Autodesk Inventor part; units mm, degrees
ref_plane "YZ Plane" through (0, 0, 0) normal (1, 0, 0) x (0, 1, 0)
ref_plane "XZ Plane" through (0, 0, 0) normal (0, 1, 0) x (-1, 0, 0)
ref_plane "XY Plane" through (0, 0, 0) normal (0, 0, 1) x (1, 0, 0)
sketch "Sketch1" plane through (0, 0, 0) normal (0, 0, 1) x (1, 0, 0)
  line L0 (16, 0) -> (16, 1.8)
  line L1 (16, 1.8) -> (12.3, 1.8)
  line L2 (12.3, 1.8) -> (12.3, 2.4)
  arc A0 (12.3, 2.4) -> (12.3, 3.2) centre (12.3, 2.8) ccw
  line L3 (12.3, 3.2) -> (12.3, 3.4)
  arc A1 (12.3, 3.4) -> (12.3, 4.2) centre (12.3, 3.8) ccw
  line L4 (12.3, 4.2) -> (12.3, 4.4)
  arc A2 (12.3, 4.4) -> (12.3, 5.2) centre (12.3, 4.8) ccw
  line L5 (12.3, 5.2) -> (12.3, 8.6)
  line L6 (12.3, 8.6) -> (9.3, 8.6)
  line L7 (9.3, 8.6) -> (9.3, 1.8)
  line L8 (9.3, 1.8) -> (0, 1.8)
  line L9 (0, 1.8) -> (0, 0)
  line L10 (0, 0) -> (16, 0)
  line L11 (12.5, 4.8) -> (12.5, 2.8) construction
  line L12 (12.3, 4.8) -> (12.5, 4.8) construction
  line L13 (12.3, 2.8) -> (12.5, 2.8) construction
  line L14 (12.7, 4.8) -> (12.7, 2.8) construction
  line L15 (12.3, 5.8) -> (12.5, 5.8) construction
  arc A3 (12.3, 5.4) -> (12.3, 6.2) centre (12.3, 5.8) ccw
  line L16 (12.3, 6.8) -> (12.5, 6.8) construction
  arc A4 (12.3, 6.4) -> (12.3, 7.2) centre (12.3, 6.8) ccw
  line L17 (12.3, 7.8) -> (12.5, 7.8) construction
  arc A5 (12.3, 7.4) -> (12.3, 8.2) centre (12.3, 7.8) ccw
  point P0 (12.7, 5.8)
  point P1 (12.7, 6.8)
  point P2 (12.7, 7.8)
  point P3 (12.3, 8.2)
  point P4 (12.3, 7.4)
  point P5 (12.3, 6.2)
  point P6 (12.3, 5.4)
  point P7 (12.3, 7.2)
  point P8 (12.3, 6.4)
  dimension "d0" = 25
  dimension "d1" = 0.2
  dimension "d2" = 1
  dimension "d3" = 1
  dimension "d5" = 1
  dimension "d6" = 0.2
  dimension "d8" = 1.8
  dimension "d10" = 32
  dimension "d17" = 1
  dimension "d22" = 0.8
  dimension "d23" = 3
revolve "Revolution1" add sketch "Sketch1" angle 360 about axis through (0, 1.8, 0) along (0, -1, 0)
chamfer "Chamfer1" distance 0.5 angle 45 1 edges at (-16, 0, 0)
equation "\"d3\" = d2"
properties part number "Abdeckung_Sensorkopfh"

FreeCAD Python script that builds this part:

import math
import FreeCAD as App
import Part
import Sketcher
from FreeCAD import Vector


def edges_at(feature, points):
    """Names of the edges that pass closest to the given points."""
    edges = feature.Shape.Edges
    near = lambda p: min(range(len(edges)), key=lambda i: edges[i].distToShape(Part.Vertex(*p))[0])
    return sorted({f"Edge{near(p) + 1}" for p in points})

doc = App.newDocument("Part")
params = doc.addObject("Spreadsheet::Sheet", "Params")
for row, (alias, value) in enumerate([
    ("sketch1_radius", "0.4 mm"),
    ("sketch1_width", "3 mm"),
    ("sketch1_height", "1.8 mm"),
    ("sketch1_height2", "0.2 mm"),
    ("sketch1_width2", "16 mm"),
    ("revolution_angle", "360 deg"),
    ("chamfer_size", "0.5 mm"),
], start=1):
    params.set(f"A{row}", alias)
    params.set(f"B{row}", "=" + value)
    params.setAlias(f"B{row}", alias)

body = doc.addObject("PartDesign::Body", "Body")

sketch1 = body.newObject("Sketcher::SketchObject", "Sketch")
sketch1.AttachmentSupport = (doc.getObject("XY_Plane"), [""])
sketch1.MapMode = "FlatFace"
sketch1.addGeometry([
    Part.LineSegment(Vector(0, 0, 0), Vector(16, 0, 0)),
    Part.LineSegment(Vector(16, 0, 0), Vector(16, 1.8, 0)),
    Part.LineSegment(Vector(16, 1.8, 0), Vector(12.3, 1.8, 0)),
    Part.LineSegment(Vector(12.3, 1.8, 0), Vector(12.3, 2.4, 0)),
    Part.ArcOfCircle(Part.Circle(Vector(12.3, 2.8, 0), Vector(0, 0, 1), 0.4), math.radians(-90), math.radians(90)),
    Part.LineSegment(Vector(12.3, 3.2, 0), Vector(12.3, 3.4, 0)),
    Part.ArcOfCircle(Part.Circle(Vector(12.3, 3.8, 0), Vector(0, 0, 1), 0.4), math.radians(-90), math.radians(90)),
    Part.LineSegment(Vector(12.3, 4.2, 0), Vector(12.3, 4.4, 0)),
    Part.ArcOfCircle(Part.Circle(Vector(12.3, 4.8, 0), Vector(0, 0, 1), 0.4), math.radians(-90), math.radians(90)),
    Part.LineSegment(Vector(12.3, 5.2, 0), Vector(12.3, 5.4, 0)),
    Part.ArcOfCircle(Part.Circle(Vector(12.3, 5.8, 0), Vector(0, 0, 1), 0.4), math.radians(-90), math.radians(90)),
    Part.LineSegment(Vector(12.3, 6.2, 0), Vector(12.3, 6.4, 0)),
    Part.ArcOfCircle(Part.Circle(Vector(12.3, 6.8, 0), Vector(0, 0, 1), 0.4), math.radians(-90), math.radians(90)),
    Part.LineSegment(Vector(12.3, 7.2, 0), Vector(12.3, 7.4, 0)),
    Part.ArcOfCircle(Part.Circle(Vector(12.3, 7.8, 0), Vector(0, 0, 1), 0.4), math.radians(-90), math.radians(90)),
    Part.LineSegment(Vector(12.3, 8.2, 0), Vector(12.3, 8.6, 0)),
    Part.LineSegment(Vector(12.3, 8.6, 0), Vector(9.3, 8.6, 0)),
    Part.LineSegment(Vector(9.3, 8.6, 0), Vector(9.3, 1.8, 0)),
    Part.LineSegment(Vector(9.3, 1.8, 0), Vector(0, 1.8, 0)),
    Part.LineSegment(Vector(0, 1.8, 0), Vector(0, 0, 0)),
], False)
sketch1.addConstraint([
    Sketcher.Constraint("Coincident", 0, 2, 1, 1),
    Sketcher.Constraint("Coincident", 1, 2, 2, 1),
    Sketcher.Constraint("Coincident", 2, 2, 3, 1),
    Sketcher.Constraint("Coincident", 3, 2, 4, 1),
    Sketcher.Constraint("Coincident", 4, 2, 5, 1),
    Sketcher.Constraint("Coincident", 5, 2, 6, 1),
    Sketcher.Constraint("Coincident", 6, 2, 7, 1),
    Sketcher.Constraint("Coincident", 7, 2, 8, 1),
    Sketcher.Constraint("Coincident", 8, 2, 9, 1),
    Sketcher.Constraint("Coincident", 9, 2, 10, 1),
    Sketcher.Constraint("Coincident", 10, 2, 11, 1),
    Sketcher.Constraint("Coincident", 11, 2, 12, 1),
    Sketcher.Constraint("Coincident", 12, 2, 13, 1),
    Sketcher.Constraint("Coincident", 13, 2, 14, 1),
    Sketcher.Constraint("Coincident", 14, 2, 15, 1),
    Sketcher.Constraint("Coincident", 15, 2, 16, 1),
    Sketcher.Constraint("Coincident", 16, 2, 17, 1),
    Sketcher.Constraint("Coincident", 17, 2, 18, 1),
    Sketcher.Constraint("Coincident", 18, 2, 19, 1),
    Sketcher.Constraint("Coincident", 19, 2, 0, 1),
    Sketcher.Constraint("Horizontal", 0),
    Sketcher.Constraint("Vertical", 1),
    Sketcher.Constraint("Horizontal", 2),
    Sketcher.Constraint("Vertical", 3),
    Sketcher.Constraint("Vertical", 5),
    Sketcher.Constraint("Vertical", 7),
    Sketcher.Constraint("Vertical", 9),
    Sketcher.Constraint("Vertical", 11),
    Sketcher.Constraint("Vertical", 13),
    Sketcher.Constraint("Vertical", 15),
    Sketcher.Constraint("Horizontal", 16),
    Sketcher.Constraint("Vertical", 17),
    Sketcher.Constraint("Horizontal", 18),
    Sketcher.Constraint("Vertical", 19),
    Sketcher.Constraint("Coincident", 19, 2, -1, 1),
    Sketcher.Constraint("Equal", 4, 6),
    Sketcher.Constraint("Equal", 6, 8),
    Sketcher.Constraint("Equal", 8, 10),
    Sketcher.Constraint("Equal", 10, 12),
    Sketcher.Constraint("Equal", 12, 14),
    Sketcher.Constraint("Horizontal", 2, 2, 17, 2),
    Sketcher.Constraint("Vertical", 4, 3, 6, 3),
    Sketcher.Constraint("Vertical", 6, 3, 8, 3),
    Sketcher.Constraint("Vertical", 8, 3, 10, 3),
    Sketcher.Constraint("Vertical", 10, 3, 12, 3),
    Sketcher.Constraint("Vertical", 12, 3, 14, 3),
    Sketcher.Constraint("Vertical", 14, 3, 2, 2),
    Sketcher.Constraint("Vertical", 3, 2, 4, 2),
    Sketcher.Constraint("Vertical", 5, 2, 6, 2),
    Sketcher.Constraint("Vertical", 7, 2, 8, 2),
    Sketcher.Constraint("Vertical", 9, 2, 10, 2),
    Sketcher.Constraint("Vertical", 11, 2, 12, 2),
    Sketcher.Constraint("Vertical", 13, 2, 14, 2),
    Sketcher.Constraint("Equal", 5, 7),
    Sketcher.Constraint("Equal", 7, 9),
    Sketcher.Constraint("Equal", 9, 11),
    Sketcher.Constraint("Equal", 11, 13),
    Sketcher.Constraint("Radius", 4, 0.4),
    Sketcher.Constraint("DistanceX", 16, 2, 16, 1, 3.0),
    Sketcher.Constraint("DistanceY", 1, 1, 1, 2, 1.8),
    Sketcher.Constraint("DistanceY", 5, 1, 5, 2, 0.2),
    Sketcher.Constraint("DistanceY", 1, 2, 4, 3, 1.0),
    Sketcher.Constraint("DistanceY", 14, 3, 15, 2, 0.8),
    Sketcher.Constraint("DistanceX", 0, 1, 0, 2, 16.0),
    Sketcher.Constraint("DistanceX", 2, 2, 2, 1, 3.7),
])
sketch1.setExpression("Constraints[57]", "Params.sketch1_radius")
sketch1.setExpression("Constraints[58]", "Params.sketch1_width")
sketch1.setExpression("Constraints[59]", "Params.sketch1_height")
sketch1.setExpression("Constraints[60]", "Params.sketch1_height2")
sketch1.setExpression("Constraints[63]", "Params.sketch1_width2")
revolution = body.newObject("PartDesign::Revolution", "Revolution")
revolution.Profile = sketch1
revolution.ReferenceAxis = (sketch1, ["V_Axis"])
revolution.setExpression("Angle", "Params.revolution_angle")
doc.recompute()

chamfer = body.newObject("PartDesign::Chamfer", "Chamfer")
chamfer.Base = (revolution, edges_at(revolution, [(-16, 0, 0)]))
chamfer.setExpression("Size", "Params.chamfer_size")

doc.recompute()
